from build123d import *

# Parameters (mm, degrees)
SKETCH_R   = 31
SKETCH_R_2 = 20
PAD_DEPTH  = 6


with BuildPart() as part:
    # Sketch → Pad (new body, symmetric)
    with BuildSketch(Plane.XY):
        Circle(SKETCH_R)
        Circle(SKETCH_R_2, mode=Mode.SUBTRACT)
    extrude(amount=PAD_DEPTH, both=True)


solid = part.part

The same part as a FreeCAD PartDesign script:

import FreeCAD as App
import Part
import Sketcher

doc = App.newDocument("Part")
body = doc.addObject("PartDesign::Body", "Body")

sketch1 = body.newObject("Sketcher::SketchObject", "Sketch")
sketch1.AttachmentSupport = (doc.getObject("XY_Plane"), [""])
sketch1.MapMode = "FlatFace"
sketch1.addGeometry([
    Part.Circle(App.Vector(0, 0, 0), App.Vector(0, 0, 1), 31),
    Part.Circle(App.Vector(0, 0, 0), App.Vector(0, 0, 1), 20),
], False)
sketch1.addConstraint([
    Sketcher.Constraint("Coincident", 0, 3, -1, 1),
    Sketcher.Constraint("Coincident", 1, 3, -1, 1),
    Sketcher.Constraint("Diameter", 0, 62.0),
    Sketcher.Constraint("Diameter", 1, 40.0),
])
pad1 = body.newObject("PartDesign::Pad", "Pad")
pad1.Profile = sketch1
pad1.Length = 12
pad1.Midplane = True

doc.recompute()
